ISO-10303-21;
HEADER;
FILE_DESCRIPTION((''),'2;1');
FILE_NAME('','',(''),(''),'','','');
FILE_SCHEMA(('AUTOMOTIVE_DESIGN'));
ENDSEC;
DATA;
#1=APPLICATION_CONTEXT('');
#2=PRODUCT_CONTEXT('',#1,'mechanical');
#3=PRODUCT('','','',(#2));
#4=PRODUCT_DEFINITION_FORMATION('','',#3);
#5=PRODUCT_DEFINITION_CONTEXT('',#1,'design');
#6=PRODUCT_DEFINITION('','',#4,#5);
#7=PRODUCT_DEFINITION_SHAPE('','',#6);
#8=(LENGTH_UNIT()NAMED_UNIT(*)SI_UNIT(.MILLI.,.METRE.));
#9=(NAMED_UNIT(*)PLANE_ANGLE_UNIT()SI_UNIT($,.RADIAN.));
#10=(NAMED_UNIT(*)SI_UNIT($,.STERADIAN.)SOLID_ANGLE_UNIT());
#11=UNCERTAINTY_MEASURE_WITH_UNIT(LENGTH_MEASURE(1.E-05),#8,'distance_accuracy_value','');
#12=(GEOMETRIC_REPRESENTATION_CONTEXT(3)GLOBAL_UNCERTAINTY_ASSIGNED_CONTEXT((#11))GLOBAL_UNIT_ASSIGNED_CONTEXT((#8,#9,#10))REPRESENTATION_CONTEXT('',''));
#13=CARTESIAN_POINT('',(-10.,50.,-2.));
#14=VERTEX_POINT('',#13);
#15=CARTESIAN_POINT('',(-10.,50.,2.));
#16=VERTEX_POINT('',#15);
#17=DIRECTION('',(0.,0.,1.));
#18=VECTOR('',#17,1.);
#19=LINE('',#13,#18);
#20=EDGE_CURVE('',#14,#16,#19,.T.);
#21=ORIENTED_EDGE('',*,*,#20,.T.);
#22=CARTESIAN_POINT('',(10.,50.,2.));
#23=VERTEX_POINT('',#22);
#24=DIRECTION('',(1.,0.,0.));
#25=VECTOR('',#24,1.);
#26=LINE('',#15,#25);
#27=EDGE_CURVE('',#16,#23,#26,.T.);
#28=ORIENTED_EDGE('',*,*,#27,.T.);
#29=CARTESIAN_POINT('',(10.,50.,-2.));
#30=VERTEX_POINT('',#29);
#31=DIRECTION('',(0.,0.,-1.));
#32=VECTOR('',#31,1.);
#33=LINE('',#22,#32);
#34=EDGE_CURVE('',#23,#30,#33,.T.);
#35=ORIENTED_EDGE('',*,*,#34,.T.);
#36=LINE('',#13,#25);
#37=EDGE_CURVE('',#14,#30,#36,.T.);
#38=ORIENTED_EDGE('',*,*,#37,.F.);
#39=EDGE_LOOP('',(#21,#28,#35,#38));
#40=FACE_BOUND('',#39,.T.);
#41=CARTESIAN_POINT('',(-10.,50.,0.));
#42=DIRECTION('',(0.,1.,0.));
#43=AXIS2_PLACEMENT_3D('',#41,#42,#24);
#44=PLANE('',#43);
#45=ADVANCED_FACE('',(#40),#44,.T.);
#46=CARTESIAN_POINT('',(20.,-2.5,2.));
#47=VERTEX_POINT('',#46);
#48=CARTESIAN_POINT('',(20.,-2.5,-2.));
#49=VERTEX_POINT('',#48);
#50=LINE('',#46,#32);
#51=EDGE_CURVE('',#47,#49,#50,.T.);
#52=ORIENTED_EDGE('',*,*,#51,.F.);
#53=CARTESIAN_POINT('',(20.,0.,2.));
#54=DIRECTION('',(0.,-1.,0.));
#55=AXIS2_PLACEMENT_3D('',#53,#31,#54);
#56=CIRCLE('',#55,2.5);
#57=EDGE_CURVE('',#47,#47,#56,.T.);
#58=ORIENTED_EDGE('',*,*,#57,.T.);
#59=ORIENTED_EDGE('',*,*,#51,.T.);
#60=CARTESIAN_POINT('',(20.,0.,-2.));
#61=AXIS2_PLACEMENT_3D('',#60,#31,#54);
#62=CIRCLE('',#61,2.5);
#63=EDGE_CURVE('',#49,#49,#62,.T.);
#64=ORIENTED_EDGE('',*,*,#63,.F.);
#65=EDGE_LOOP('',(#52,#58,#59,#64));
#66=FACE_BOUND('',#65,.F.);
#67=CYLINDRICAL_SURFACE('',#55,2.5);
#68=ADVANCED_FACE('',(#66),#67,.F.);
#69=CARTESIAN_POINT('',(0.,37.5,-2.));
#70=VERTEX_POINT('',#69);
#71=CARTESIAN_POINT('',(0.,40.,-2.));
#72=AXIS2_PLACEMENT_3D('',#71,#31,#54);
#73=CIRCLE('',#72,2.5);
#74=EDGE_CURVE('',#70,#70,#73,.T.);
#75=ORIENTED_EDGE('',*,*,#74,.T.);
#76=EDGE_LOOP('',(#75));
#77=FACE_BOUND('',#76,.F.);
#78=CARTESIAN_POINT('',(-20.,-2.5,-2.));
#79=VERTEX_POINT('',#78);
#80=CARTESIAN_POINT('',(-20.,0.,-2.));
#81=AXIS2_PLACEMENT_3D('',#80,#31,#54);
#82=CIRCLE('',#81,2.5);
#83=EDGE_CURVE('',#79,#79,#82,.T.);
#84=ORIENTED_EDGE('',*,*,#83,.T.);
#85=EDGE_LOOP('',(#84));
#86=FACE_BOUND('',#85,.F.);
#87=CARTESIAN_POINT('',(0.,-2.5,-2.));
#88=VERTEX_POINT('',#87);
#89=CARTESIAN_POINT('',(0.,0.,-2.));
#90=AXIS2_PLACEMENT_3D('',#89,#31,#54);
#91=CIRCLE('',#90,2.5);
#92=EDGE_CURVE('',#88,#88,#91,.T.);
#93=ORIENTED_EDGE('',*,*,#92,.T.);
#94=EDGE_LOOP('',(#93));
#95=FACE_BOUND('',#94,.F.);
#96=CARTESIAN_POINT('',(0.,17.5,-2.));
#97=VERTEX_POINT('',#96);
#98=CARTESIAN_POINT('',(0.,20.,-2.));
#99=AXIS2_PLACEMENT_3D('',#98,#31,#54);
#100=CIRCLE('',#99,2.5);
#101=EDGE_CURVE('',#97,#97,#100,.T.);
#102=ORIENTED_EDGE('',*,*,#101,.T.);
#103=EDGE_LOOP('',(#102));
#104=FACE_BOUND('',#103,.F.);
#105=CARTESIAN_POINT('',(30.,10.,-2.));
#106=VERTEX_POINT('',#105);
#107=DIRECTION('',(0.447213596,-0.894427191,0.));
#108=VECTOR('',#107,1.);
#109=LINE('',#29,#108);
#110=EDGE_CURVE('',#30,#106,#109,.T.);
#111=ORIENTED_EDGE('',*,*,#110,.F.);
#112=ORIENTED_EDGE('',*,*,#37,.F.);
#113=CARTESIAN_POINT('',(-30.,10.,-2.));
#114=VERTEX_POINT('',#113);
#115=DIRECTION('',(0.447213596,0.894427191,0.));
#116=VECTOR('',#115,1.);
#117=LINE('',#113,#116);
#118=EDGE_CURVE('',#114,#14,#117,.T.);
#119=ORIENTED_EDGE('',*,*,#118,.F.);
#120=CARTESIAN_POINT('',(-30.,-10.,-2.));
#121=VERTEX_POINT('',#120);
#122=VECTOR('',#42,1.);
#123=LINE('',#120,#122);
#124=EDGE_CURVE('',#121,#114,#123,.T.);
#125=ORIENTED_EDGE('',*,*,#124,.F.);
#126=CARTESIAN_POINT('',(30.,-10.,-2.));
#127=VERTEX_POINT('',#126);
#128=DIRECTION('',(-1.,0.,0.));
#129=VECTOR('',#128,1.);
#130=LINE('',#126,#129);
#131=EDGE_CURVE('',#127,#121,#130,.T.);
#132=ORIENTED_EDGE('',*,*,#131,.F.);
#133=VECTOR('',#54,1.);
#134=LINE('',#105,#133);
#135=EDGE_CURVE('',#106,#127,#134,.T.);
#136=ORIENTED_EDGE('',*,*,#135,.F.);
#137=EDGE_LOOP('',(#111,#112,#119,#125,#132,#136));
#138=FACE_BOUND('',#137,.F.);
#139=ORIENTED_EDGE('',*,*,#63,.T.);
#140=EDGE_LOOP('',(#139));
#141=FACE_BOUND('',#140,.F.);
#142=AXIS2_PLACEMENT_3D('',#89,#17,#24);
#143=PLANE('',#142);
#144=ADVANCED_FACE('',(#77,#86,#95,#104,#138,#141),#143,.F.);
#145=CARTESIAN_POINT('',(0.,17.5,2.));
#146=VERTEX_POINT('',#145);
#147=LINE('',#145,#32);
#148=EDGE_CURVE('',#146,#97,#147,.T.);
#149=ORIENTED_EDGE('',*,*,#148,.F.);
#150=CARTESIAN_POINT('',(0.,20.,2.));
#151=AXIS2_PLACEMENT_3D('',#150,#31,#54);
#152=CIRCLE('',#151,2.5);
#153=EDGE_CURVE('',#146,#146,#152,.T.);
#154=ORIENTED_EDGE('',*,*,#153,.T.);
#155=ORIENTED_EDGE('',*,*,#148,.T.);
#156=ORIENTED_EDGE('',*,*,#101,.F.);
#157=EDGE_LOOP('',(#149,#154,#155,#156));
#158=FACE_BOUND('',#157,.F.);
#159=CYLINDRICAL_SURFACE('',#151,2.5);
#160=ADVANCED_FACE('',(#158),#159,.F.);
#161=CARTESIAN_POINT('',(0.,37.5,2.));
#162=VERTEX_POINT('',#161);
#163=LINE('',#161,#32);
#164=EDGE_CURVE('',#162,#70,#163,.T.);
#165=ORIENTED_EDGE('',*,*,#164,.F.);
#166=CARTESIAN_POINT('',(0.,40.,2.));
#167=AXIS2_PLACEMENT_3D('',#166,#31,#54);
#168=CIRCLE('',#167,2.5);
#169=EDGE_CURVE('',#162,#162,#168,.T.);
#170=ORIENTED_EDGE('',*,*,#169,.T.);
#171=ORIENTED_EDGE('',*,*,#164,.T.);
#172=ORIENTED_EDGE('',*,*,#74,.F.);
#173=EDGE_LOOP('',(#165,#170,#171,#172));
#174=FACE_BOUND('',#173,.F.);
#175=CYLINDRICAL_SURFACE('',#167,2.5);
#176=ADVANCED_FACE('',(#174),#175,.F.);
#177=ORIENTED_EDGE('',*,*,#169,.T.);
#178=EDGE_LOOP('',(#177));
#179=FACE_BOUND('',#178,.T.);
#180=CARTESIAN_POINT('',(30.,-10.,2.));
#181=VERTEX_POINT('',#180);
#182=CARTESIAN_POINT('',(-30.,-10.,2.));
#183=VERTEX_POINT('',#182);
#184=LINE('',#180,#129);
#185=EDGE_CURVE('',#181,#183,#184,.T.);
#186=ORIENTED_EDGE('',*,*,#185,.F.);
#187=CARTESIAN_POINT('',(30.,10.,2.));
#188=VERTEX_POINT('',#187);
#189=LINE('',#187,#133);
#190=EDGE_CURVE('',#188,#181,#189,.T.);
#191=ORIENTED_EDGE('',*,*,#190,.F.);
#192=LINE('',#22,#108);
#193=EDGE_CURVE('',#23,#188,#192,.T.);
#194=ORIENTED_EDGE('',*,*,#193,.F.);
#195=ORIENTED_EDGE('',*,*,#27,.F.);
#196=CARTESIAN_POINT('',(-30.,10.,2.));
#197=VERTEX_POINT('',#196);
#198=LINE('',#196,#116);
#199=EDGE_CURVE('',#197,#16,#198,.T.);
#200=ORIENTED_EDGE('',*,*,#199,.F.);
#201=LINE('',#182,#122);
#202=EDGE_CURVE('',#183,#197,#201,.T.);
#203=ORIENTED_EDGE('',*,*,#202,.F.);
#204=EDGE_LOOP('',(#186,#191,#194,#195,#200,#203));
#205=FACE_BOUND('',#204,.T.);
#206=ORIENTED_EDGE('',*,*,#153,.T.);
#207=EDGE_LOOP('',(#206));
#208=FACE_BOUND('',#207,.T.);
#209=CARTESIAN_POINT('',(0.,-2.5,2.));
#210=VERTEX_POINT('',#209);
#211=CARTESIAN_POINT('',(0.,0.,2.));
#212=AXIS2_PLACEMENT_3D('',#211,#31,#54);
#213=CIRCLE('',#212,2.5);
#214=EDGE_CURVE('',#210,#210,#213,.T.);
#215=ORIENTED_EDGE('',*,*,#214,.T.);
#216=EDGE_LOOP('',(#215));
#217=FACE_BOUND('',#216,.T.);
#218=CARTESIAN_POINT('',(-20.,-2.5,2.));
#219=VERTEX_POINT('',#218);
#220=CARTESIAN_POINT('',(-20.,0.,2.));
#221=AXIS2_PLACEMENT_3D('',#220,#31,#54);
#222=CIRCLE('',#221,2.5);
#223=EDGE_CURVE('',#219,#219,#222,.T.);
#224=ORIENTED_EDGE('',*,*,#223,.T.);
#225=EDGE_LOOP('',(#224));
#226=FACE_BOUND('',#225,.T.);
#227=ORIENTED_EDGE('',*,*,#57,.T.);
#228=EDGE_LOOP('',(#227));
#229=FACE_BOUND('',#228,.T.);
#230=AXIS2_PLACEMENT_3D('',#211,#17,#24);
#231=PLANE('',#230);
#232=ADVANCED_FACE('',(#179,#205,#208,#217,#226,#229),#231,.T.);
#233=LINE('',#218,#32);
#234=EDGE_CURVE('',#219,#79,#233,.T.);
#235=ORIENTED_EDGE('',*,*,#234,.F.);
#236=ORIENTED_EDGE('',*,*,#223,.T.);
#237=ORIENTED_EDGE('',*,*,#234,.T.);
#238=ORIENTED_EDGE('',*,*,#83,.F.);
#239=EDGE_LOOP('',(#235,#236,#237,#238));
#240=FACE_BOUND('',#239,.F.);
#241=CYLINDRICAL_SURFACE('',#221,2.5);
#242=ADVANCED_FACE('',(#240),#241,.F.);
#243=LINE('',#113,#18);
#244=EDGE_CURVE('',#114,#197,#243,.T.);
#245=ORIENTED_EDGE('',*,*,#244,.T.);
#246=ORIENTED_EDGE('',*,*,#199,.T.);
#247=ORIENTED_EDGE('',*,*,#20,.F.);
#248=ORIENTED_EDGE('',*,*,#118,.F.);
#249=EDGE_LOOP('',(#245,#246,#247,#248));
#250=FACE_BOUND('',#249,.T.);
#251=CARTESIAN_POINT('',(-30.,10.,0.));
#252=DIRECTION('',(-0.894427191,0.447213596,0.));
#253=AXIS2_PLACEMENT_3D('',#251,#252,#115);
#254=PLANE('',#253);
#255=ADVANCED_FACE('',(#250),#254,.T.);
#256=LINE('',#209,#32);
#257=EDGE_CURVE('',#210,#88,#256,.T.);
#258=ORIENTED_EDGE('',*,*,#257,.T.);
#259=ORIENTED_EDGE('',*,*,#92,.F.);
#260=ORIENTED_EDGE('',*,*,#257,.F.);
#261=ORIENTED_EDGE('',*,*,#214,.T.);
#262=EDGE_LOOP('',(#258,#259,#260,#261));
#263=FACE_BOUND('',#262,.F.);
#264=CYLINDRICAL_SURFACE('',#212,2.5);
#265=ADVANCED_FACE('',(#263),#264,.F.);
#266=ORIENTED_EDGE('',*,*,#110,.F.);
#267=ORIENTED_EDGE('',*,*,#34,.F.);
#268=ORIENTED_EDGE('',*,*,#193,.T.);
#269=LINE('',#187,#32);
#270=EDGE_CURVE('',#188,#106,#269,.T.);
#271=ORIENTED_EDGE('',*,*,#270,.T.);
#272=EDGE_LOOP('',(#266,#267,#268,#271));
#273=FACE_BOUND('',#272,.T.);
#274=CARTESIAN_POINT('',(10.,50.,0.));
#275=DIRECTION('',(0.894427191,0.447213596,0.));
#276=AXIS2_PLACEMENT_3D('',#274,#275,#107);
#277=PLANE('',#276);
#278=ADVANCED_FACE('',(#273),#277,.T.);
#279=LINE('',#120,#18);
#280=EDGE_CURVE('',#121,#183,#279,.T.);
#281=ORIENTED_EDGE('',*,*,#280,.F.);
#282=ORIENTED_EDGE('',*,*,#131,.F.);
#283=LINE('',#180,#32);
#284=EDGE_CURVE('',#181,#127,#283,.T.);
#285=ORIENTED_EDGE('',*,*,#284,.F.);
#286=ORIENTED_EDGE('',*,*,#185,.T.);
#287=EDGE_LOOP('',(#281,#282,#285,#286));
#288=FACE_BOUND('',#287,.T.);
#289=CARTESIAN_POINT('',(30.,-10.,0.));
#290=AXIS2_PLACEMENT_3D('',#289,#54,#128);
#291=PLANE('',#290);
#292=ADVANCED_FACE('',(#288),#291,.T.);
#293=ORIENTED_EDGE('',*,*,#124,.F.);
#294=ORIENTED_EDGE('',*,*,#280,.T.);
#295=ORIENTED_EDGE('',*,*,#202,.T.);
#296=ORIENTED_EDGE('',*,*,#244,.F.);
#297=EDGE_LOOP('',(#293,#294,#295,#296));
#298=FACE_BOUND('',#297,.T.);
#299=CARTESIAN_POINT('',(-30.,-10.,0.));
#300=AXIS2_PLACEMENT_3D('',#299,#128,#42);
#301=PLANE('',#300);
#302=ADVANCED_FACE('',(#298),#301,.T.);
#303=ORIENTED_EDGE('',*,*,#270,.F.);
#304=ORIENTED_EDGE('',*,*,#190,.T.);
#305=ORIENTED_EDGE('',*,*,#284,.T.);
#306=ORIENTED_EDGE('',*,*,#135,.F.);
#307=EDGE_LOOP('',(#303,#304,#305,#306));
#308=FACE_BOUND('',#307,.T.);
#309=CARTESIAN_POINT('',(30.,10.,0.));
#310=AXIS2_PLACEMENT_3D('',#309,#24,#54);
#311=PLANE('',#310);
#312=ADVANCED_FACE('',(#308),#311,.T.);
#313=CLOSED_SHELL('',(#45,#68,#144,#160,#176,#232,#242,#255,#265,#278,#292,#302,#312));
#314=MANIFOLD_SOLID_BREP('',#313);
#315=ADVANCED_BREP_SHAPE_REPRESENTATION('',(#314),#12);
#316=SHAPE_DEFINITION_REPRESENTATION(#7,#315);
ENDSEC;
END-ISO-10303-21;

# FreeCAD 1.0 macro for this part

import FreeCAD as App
import Part
import Sketcher

V = App.Vector


def add_polygon(sketch, points):
    """Adds a closed chain of lines whose ends are joined by coincident constraints."""
    first, n = sketch.GeometryCount, len(points)
    for a, b in zip(points, points[1:] + points[:1]):
        sketch.addGeometry(Part.LineSegment(App.Vector(*a, 0), App.Vector(*b, 0)), False)
    for i in range(n):
        sketch.addConstraint(Sketcher.Constraint("Coincident", first + i, 2, first + (i + 1) % n, 1))

doc = App.newDocument("Part")
body = doc.addObject("PartDesign::Body", "Body")

sketch1 = doc.addObject("Sketcher::SketchObject", "Sketch")
body.addObject(sketch1)
sketch1.AttachmentSupport = (doc.XY_Plane, [""])
sketch1.MapMode = "FlatFace"
add_polygon(sketch1, [(10, 50), (-10, 50), (-30, 10), (-30, -10), (30, -10), (30, 10)])
sketch1.addConstraint(Sketcher.Constraint("Horizontal", 0))
sketch1.addConstraint(Sketcher.Constraint("Vertical", 2))
sketch1.addConstraint(Sketcher.Constraint("Horizontal", 3))
sketch1.addConstraint(Sketcher.Constraint("Vertical", 4))
sketch1.addConstraint(Sketcher.Constraint("Symmetric", 1, 2, 3, 2, -1, 1))
sketch1.addConstraint(Sketcher.Constraint("Horizontal", 1, 2, 4, 2))
sketch1.addConstraint(Sketcher.Constraint("Equal", 0, 2))
sketch1.addConstraint(Sketcher.Constraint("Equal", 1, 5))
sketch1.addConstraint(Sketcher.Constraint("DistanceX", 0, 2, 0, 1, 20.0))
sketch1.addConstraint(Sketcher.Constraint("DistanceX", 3, 1, 3, 2, 60.0))
sketch1.addConstraint(Sketcher.Constraint("DistanceY", 2, 2, 0, 2, 60.0))
pad1 = doc.addObject("PartDesign::Pad", "Pad")
body.addObject(pad1)
pad1.Profile = sketch1
pad1.Length = 4
pad1.Midplane = True

sketch2 = doc.addObject("Sketcher::SketchObject", "Sketch001")
body.addObject(sketch2)
sketch2.AttachmentSupport = (doc.XY_Plane, [""])
sketch2.MapMode = "FlatFace"
sketch2.AttachmentOffset = App.Placement(V(0, 0, 2), App.Rotation())
sketch2.addGeometry(Part.Circle(V(0, 0, 0), V(0, 0, 1), 2.5), False)
sketch2.addGeometry(Part.Circle(V(-20, 0, 0), V(0, 0, 1), 2.5), False)
sketch2.addGeometry(Part.Circle(V(20, 0, 0), V(0, 0, 1), 2.5), False)
sketch2.addGeometry(Part.Circle(V(0, 20, 0), V(0, 0, 1), 2.5), False)
sketch2.addGeometry(Part.Circle(V(0, 40, 0), V(0, 0, 1), 2.5), False)
sketch2.addConstraint(Sketcher.Constraint("Coincident", 0, 3, -1, 1))
sketch2.addConstraint(Sketcher.Constraint("Equal", 0, 1))
sketch2.addConstraint(Sketcher.Constraint("Equal", 1, 2))
sketch2.addConstraint(Sketcher.Constraint("Equal", 2, 3))
sketch2.addConstraint(Sketcher.Constraint("Equal", 3, 4))
sketch2.addConstraint(Sketcher.Constraint("Symmetric", 1, 3, 2, 3, -1, 1))
sketch2.addConstraint(Sketcher.Constraint("PointOnObject", 1, 3, -1))
sketch2.addConstraint(Sketcher.Constraint("PointOnObject", 3, 3, -2))
sketch2.addConstraint(Sketcher.Constraint("PointOnObject", 4, 3, -2))
sketch2.addConstraint(Sketcher.Constraint("Diameter", 0, 5.0))
sketch2.addConstraint(Sketcher.Constraint("DistanceX", 1, 3, -1, 1, 20.0))
sketch2.addConstraint(Sketcher.Constraint("DistanceY", -1, 1, 3, 3, 20.0))
sketch2.addConstraint(Sketcher.Constraint("DistanceY", -1, 1, 4, 3, 40.0))
doc.recompute()
hole = doc.addObject("PartDesign::Hole", "Hole")
body.addObject(hole)
hole.Profile = sketch2
hole.ThreadType = "None"
hole.Diameter = 5
hole.DepthType = "ThroughAll"

doc.recompute()
